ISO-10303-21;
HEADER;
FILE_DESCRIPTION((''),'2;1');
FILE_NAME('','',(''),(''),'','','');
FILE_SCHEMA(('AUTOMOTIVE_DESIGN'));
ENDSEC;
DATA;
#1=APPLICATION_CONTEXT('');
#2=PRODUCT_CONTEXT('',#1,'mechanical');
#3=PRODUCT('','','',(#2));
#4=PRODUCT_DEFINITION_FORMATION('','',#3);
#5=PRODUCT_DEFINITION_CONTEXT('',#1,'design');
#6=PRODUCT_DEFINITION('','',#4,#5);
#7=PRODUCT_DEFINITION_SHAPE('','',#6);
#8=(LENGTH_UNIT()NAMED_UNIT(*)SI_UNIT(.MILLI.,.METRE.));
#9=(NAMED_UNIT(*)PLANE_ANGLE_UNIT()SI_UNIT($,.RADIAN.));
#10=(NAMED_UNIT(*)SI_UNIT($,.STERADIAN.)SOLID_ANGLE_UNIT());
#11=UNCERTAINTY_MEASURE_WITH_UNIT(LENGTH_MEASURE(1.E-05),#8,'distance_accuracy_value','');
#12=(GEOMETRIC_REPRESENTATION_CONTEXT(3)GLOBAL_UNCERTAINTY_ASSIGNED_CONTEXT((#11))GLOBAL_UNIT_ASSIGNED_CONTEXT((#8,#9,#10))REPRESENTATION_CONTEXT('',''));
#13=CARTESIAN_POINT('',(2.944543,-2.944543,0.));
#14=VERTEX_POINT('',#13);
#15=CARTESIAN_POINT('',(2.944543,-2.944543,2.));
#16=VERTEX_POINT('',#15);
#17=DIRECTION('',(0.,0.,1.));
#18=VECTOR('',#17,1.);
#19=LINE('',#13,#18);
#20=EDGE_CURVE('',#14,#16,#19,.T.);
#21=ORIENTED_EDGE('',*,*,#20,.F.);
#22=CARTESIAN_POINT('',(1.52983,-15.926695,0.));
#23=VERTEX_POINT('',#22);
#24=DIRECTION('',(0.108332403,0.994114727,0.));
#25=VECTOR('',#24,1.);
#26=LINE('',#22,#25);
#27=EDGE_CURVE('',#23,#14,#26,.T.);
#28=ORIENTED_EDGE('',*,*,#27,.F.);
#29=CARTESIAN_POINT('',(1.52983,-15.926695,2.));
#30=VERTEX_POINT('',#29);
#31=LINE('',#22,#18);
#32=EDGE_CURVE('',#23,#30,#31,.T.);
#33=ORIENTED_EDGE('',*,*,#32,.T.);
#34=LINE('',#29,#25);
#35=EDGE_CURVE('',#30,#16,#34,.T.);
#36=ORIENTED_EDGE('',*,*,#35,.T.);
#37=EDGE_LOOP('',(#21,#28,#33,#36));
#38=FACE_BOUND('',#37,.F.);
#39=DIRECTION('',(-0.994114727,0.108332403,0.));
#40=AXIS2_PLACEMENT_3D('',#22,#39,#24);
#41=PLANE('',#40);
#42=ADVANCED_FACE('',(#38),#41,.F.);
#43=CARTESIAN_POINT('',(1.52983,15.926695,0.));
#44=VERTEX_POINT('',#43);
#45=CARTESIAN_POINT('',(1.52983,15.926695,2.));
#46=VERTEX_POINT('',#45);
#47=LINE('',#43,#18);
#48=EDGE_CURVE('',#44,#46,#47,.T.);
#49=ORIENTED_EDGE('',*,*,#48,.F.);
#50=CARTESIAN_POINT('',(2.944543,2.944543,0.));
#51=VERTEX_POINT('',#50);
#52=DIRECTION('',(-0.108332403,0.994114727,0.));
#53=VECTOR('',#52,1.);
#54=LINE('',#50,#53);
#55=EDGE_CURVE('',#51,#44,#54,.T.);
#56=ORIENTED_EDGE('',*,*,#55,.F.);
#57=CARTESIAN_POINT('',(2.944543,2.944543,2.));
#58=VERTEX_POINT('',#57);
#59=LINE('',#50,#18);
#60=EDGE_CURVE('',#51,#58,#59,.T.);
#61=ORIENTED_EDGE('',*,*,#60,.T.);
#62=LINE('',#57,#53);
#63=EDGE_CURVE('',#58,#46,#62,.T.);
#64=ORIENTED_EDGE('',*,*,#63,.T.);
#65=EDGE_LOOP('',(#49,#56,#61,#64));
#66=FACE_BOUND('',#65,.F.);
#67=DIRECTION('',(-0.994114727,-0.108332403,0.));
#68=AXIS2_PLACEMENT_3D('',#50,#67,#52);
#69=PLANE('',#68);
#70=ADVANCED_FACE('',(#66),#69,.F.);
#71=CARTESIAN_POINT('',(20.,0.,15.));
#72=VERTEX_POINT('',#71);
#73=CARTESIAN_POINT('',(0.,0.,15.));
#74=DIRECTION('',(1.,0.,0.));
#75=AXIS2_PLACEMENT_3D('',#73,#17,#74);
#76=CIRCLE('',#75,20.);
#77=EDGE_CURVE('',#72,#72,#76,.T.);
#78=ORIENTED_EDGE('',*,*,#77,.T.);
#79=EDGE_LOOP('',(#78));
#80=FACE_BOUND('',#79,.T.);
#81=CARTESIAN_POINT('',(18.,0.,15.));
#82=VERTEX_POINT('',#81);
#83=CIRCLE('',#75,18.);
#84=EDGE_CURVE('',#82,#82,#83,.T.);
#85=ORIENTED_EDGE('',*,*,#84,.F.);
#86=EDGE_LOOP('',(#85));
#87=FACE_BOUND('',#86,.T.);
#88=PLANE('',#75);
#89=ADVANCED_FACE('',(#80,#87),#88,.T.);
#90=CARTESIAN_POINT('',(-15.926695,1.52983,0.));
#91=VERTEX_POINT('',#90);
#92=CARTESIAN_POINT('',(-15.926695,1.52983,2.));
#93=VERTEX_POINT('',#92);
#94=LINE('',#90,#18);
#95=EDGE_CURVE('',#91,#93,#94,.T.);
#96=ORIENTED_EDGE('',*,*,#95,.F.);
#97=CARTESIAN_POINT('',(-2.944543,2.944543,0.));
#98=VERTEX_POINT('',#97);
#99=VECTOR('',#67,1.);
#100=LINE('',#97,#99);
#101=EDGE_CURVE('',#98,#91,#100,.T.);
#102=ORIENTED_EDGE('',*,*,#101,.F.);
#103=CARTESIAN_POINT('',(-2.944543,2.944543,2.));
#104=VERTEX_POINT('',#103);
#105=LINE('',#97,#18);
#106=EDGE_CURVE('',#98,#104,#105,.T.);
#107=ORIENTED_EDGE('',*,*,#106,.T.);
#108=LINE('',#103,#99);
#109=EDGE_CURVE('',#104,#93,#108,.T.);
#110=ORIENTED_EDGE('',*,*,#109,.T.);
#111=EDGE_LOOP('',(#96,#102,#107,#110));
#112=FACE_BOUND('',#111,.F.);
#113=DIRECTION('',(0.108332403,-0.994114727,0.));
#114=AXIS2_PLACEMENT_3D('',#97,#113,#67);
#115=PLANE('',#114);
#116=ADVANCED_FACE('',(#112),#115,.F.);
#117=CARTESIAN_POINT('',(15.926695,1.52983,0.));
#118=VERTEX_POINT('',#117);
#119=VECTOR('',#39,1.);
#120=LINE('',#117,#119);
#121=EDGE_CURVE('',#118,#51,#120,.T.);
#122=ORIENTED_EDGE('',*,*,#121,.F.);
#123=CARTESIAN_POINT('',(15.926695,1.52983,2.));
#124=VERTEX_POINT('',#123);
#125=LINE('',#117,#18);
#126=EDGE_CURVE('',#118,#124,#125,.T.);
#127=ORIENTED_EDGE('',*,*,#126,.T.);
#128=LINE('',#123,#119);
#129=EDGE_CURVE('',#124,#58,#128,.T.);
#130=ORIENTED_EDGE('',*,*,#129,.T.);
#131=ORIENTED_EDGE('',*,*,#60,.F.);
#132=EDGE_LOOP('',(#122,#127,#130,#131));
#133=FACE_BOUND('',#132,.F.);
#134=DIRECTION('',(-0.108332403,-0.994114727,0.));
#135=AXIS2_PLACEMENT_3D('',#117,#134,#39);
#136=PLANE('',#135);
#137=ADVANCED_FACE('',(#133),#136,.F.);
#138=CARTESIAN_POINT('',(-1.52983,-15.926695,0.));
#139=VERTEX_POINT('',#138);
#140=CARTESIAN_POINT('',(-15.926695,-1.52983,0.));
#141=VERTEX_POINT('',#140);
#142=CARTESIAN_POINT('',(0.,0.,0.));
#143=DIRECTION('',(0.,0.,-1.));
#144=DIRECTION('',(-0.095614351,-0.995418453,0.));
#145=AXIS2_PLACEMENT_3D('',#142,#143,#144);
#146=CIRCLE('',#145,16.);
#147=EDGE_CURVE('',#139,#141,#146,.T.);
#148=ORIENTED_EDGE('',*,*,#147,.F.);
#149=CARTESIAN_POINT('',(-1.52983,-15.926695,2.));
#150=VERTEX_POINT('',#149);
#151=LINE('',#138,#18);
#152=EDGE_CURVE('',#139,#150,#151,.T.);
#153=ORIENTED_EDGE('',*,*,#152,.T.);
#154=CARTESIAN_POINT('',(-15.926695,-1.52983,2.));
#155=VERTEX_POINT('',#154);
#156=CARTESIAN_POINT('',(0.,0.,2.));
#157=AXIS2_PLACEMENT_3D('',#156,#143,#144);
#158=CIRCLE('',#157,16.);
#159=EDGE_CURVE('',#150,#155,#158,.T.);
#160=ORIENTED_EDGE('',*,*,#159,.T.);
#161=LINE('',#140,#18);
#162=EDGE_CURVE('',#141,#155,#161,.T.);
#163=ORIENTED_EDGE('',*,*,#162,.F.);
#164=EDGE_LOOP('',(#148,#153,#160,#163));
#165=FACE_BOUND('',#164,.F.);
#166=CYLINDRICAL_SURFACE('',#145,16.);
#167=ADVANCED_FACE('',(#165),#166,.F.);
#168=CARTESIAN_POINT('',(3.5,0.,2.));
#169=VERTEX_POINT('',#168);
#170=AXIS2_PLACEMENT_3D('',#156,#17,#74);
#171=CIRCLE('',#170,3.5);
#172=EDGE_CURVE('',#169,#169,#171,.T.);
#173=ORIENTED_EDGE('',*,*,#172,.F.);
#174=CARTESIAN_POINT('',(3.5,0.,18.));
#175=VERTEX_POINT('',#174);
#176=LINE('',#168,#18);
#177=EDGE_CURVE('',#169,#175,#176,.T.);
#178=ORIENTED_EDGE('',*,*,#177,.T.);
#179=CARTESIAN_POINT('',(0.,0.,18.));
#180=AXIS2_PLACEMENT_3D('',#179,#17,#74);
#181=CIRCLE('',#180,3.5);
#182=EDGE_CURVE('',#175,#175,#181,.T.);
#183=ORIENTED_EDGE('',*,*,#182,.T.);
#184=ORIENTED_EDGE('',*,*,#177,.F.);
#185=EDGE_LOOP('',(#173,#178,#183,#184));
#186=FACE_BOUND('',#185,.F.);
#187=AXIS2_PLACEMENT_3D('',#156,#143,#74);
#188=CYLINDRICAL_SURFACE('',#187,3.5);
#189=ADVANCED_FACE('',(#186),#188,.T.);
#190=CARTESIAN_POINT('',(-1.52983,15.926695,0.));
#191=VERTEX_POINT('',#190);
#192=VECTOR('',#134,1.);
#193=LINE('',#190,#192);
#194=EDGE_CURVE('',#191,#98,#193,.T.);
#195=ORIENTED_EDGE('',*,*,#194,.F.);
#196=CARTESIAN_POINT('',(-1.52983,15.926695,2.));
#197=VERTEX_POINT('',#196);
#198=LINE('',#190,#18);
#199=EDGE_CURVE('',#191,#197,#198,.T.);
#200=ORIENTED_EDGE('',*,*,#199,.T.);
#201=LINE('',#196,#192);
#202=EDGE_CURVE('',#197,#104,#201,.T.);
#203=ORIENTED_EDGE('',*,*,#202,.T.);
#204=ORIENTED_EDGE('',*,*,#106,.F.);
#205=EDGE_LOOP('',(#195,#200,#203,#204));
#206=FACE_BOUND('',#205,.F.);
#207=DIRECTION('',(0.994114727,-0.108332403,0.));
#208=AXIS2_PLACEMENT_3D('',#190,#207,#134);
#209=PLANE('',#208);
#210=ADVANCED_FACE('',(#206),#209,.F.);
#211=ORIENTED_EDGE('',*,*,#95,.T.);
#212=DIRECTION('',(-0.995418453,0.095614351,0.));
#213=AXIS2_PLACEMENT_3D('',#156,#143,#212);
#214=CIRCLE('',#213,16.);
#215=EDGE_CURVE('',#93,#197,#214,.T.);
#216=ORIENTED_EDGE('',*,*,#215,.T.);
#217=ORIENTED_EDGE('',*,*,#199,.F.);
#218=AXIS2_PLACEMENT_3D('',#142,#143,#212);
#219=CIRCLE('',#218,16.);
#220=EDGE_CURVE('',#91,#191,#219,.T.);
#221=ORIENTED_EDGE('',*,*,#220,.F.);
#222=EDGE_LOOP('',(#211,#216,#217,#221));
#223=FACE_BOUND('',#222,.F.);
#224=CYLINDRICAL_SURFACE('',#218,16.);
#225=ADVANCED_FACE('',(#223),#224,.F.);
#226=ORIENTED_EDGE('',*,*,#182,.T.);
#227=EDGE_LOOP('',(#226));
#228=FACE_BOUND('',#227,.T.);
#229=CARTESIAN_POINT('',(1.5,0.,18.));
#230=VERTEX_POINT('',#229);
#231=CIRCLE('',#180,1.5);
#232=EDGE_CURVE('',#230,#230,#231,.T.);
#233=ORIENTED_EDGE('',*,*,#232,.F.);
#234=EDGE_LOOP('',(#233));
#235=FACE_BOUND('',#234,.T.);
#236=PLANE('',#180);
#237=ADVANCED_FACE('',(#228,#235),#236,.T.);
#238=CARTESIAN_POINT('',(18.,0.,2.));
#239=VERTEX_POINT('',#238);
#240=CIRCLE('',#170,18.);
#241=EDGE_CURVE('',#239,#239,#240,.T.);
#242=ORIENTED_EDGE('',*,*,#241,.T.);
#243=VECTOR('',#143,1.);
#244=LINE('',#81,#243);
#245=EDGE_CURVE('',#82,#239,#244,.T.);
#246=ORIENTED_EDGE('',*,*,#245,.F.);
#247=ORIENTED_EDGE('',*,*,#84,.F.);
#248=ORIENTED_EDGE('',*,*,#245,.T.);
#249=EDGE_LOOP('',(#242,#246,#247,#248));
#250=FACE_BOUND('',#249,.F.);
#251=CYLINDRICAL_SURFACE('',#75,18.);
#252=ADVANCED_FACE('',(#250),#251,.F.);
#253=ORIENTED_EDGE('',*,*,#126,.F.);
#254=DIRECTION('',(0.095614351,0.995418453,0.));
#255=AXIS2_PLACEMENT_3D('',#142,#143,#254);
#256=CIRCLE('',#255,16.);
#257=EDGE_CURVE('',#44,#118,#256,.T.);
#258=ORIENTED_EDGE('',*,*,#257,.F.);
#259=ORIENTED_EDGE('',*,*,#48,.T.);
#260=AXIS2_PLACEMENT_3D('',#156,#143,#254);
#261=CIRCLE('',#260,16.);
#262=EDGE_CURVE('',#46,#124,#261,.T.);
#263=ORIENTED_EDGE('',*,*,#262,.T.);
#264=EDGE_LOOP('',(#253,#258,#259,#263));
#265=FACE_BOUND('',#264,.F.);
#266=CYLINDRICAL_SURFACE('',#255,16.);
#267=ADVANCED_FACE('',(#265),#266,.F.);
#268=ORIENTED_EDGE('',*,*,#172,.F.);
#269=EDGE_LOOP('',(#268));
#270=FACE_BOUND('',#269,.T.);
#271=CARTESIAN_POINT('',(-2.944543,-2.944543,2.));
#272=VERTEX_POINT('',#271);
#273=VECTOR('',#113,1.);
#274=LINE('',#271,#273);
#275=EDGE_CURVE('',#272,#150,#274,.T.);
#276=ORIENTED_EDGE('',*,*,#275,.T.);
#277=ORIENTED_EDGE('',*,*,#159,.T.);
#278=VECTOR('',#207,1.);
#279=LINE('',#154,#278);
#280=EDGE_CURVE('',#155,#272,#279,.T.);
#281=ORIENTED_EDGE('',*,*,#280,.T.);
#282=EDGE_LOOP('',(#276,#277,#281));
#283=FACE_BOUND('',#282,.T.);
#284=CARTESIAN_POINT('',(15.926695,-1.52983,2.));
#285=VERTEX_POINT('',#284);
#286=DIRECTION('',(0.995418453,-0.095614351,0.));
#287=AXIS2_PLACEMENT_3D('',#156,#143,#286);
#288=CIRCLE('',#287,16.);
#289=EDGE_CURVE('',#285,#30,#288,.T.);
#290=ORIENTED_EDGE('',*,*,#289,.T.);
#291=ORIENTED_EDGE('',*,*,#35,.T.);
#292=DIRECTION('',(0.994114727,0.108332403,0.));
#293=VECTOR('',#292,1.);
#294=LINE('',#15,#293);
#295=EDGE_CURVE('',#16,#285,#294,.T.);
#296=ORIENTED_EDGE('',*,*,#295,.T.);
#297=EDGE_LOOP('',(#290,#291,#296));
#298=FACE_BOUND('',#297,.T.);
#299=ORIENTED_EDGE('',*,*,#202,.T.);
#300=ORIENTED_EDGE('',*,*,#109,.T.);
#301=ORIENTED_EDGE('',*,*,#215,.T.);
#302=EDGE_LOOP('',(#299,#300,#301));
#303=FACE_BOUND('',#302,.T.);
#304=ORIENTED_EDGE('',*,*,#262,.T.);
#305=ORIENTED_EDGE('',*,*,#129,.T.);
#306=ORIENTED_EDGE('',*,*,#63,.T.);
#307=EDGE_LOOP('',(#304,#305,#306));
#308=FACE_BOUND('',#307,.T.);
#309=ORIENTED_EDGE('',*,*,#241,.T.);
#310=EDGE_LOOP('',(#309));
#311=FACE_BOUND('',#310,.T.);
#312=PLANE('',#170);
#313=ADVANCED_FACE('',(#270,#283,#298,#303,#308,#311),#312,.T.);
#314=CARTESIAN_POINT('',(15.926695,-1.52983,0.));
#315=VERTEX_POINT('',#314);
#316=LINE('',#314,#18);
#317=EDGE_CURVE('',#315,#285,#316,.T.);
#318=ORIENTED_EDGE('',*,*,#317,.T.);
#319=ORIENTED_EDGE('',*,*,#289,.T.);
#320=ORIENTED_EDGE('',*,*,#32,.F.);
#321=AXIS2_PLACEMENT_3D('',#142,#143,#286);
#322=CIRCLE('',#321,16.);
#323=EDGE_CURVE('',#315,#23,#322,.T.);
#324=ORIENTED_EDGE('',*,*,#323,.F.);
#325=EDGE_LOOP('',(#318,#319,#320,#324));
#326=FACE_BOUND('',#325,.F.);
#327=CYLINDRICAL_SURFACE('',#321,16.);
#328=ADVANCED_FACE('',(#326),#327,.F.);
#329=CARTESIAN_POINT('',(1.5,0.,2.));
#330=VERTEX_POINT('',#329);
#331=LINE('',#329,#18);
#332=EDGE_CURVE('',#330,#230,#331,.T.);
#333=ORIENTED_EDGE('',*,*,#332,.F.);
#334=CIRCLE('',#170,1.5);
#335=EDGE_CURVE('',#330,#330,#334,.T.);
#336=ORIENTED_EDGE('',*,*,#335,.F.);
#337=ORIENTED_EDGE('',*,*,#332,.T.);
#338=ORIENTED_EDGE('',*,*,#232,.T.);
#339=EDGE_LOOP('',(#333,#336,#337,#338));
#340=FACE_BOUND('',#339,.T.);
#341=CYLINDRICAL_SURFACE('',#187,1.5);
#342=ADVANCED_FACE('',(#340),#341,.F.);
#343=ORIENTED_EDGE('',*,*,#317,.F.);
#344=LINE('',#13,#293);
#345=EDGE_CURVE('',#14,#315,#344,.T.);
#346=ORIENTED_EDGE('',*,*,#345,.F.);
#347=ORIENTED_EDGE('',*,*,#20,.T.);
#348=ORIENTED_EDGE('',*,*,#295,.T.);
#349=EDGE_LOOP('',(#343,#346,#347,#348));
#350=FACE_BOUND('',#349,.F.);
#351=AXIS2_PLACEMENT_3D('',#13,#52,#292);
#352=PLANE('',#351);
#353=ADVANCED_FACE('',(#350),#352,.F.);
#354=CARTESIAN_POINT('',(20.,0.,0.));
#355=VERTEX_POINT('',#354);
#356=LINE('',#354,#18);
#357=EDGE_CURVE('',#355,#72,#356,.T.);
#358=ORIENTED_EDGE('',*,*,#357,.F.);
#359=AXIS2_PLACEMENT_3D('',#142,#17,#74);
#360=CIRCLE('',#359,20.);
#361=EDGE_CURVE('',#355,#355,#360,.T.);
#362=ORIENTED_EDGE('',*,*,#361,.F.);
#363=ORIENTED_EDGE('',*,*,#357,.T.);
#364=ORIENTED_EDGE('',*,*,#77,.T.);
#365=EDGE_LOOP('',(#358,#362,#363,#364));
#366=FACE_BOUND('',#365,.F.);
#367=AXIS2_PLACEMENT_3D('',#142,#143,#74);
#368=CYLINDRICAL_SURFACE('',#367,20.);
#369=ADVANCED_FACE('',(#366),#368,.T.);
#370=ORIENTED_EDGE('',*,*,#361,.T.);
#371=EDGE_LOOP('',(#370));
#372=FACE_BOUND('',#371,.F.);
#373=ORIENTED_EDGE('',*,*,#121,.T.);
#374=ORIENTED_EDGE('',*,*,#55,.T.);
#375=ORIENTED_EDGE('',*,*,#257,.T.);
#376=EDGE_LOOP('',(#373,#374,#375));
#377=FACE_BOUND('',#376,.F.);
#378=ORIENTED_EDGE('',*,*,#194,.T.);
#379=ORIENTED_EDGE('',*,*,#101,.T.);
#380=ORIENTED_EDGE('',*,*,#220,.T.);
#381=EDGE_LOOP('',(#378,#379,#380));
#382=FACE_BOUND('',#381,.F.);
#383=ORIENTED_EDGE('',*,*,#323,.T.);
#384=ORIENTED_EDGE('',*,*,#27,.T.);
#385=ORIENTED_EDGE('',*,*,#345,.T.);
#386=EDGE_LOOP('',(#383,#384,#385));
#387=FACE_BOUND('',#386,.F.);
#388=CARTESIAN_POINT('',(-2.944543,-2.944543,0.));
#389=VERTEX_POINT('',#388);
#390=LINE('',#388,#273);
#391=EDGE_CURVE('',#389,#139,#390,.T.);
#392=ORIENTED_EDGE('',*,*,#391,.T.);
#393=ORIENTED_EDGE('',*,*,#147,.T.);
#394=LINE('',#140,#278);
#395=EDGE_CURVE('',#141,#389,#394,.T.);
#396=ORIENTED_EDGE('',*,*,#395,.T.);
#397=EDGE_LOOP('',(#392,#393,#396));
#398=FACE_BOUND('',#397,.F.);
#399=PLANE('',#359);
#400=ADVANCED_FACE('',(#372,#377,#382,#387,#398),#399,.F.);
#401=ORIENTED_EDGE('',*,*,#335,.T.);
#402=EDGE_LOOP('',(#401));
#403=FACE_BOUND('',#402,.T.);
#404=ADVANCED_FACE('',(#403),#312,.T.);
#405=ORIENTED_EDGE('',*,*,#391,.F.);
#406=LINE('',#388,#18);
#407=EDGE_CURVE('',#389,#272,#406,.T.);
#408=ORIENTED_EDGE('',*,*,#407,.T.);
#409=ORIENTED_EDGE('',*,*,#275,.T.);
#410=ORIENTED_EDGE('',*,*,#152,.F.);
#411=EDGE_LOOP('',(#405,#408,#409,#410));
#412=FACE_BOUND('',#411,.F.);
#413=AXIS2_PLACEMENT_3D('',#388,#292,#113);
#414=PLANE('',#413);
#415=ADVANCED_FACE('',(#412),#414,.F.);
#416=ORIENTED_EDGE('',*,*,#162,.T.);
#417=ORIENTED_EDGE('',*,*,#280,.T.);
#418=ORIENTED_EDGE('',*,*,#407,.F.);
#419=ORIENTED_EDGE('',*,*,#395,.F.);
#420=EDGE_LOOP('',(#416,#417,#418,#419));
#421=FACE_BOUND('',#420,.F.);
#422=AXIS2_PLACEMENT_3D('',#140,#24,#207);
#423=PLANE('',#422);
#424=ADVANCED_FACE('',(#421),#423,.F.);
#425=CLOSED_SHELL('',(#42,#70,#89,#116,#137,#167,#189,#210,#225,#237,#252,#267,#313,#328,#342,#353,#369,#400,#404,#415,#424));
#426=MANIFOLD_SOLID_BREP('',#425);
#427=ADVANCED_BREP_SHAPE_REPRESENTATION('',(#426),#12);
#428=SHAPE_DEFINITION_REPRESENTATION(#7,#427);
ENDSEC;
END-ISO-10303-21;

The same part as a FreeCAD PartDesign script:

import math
import FreeCAD as App
import Part
import Sketcher
Q = App.Units.Quantity

doc = App.newDocument("Part")
body = doc.addObject("PartDesign::Body", "Body")

sketch1 = doc.addObject("Sketcher::SketchObject", "Sketch")
body.addObject(sketch1)
sketch1.AttachmentSupport = (doc.XY_Plane, [""])
sketch1.MapMode = "FlatFace"
sketch1.addGeometry(Part.Circle(App.Vector(0, 0, 0), App.Vector(0, 0, 1), 20), False)
sketch1.addConstraint([
    Sketcher.Constraint("Coincident", 0, 3, -1, 1),
    Sketcher.Constraint("Diameter", 0, Q("40 mm")),
])
pad1 = doc.addObject("PartDesign::Pad", "Pad")
body.addObject(pad1)
pad1.Profile = sketch1
pad1.Length = 15

sketch2 = doc.addObject("Sketcher::SketchObject", "Sketch001")
body.addObject(sketch2)
sketch2.AttachmentSupport = (doc.XY_Plane, [""])
sketch2.MapMode = "FlatFace"
sketch2.AttachmentOffset = App.Placement(App.Vector(0, 0, 15), App.Rotation())
sketch2.addGeometry(Part.Circle(App.Vector(0, 0, 0), App.Vector(0, 0, 1), 18), False)
sketch2.addConstraint([
    Sketcher.Constraint("Coincident", 0, 3, -1, 1),
    Sketcher.Constraint("Diameter", 0, Q("36 mm")),
])
pocket1 = doc.addObject("PartDesign::Pocket", "Pocket")
body.addObject(pocket1)
pocket1.Profile = sketch2
pocket1.Length = 13

sketch3 = doc.addObject("Sketcher::SketchObject", "Sketch002")
body.addObject(sketch3)
sketch3.AttachmentSupport = (doc.XY_Plane, [""])
sketch3.MapMode = "FlatFace"
sketch3.AttachmentOffset = App.Placement(App.Vector(0, 0, 2), App.Rotation())
sketch3.addGeometry([
    Part.Circle(App.Vector(0, 0, 0), App.Vector(0, 0, 1), 3.5),
    Part.Circle(App.Vector(0, 0, 0), App.Vector(0, 0, 1), 1.5),
], False)
sketch3.addConstraint([
    Sketcher.Constraint("Coincident", 0, 3, -1, 1),
    Sketcher.Constraint("Coincident", 1, 3, -1, 1),
    Sketcher.Constraint("Diameter", 0, Q("7 mm")),
    Sketcher.Constraint("Diameter", 1, Q("3 mm")),
])
pad2 = doc.addObject("PartDesign::Pad", "Pad001")
body.addObject(pad2)
pad2.Profile = sketch3
pad2.Length = 16

sketch4 = doc.addObject("Sketcher::SketchObject", "Sketch003")
body.addObject(sketch4)
sketch4.AttachmentSupport = (doc.XY_Plane, [""])
sketch4.MapMode = "FlatFace"
sketch4.addGeometry([
    Part.LineSegment(App.Vector(-15.926695, -1.52983, 0), App.Vector(-2.944543, -2.944543, 0)),
    Part.LineSegment(App.Vector(-2.944543, -2.944543, 0), App.Vector(-1.52983, -15.926695, 0)),
    Part.ArcOfCircle(Part.Circle(App.Vector(0, 0, 0), App.Vector(0, 0, 1), 16), math.radians(-174.51332), math.radians(-95.48668)),
    Part.LineSegment(App.Vector(-1.52983, 15.926695, 0), App.Vector(-2.944543, 2.944543, 0)),
    Part.LineSegment(App.Vector(-2.944543, 2.944543, 0), App.Vector(-15.926695, 1.52983, 0)),
    Part.ArcOfCircle(Part.Circle(App.Vector(0, 0, 0), App.Vector(0, 0, 1), 16), math.radians(95.48668), math.radians(174.51332)),
    Part.LineSegment(App.Vector(15.926695, 1.52983, 0), App.Vector(2.944543, 2.944543, 0)),
    Part.LineSegment(App.Vector(2.944543, 2.944543, 0), App.Vector(1.52983, 15.926695, 0)),
    Part.ArcOfCircle(Part.Circle(App.Vector(0, 0, 0), App.Vector(0, 0, 1), 16), math.radians(5.48668), math.radians(84.51332)),
    Part.LineSegment(App.Vector(1.52983, -15.926695, 0), App.Vector(2.944543, -2.944543, 0)),
    Part.LineSegment(App.Vector(2.944543, -2.944543, 0), App.Vector(15.926695, -1.52983, 0)),
    Part.ArcOfCircle(Part.Circle(App.Vector(0, 0, 0), App.Vector(0, 0, 1), 16), math.radians(-84.51332), math.radians(-5.48668)),
], False)
sketch4.addConstraint([
    Sketcher.Constraint("Coincident", 0, 2, 1, 1),
    Sketcher.Constraint("Coincident", 1, 2, 2, 2),
    Sketcher.Constraint("Coincident", 2, 1, 0, 1),
    Sketcher.Constraint("Coincident", 3, 2, 4, 1),
    Sketcher.Constraint("Coincident", 4, 2, 5, 2),
    Sketcher.Constraint("Coincident", 5, 1, 3, 1),
    Sketcher.Constraint("Coincident", 6, 2, 7, 1),
    Sketcher.Constraint("Coincident", 7, 2, 8, 2),
    Sketcher.Constraint("Coincident", 8, 1, 6, 1),
    Sketcher.Constraint("Coincident", 9, 2, 10, 1),
    Sketcher.Constraint("Coincident", 10, 2, 11, 2),
    Sketcher.Constraint("Coincident", 11, 1, 9, 1),
    Sketcher.Constraint("Coincident", 2, 3, -1, 1),
    Sketcher.Constraint("Coincident", 5, 3, -1, 1),
    Sketcher.Constraint("Coincident", 8, 3, -1, 1),
    Sketcher.Constraint("Coincident", 11, 3, -1, 1),
    Sketcher.Constraint("Equal", 2, 5),
    Sketcher.Constraint("Equal", 5, 8),
    Sketcher.Constraint("Equal", 8, 11),
    Sketcher.Constraint("Symmetric", 0, 2, 6, 2, -1, 1),
    Sketcher.Constraint("Symmetric", 3, 2, 9, 2, -1, 1),
    Sketcher.Constraint("Symmetric", 3, 2, 6, 2, -2),
    Sketcher.Constraint("Perpendicular", 0, 3),
    Sketcher.Constraint("Perpendicular", 1, 4),
    Sketcher.Constraint("Perpendicular", 3, 6),
    Sketcher.Constraint("Perpendicular", 4, 7),
    Sketcher.Constraint("Perpendicular", 6, 9),
    Sketcher.Constraint("Perpendicular", 7, 10),
    Sketcher.Constraint("Horizontal", 5, 1, 7, 2),
    Sketcher.Constraint("Equal", 0, 1),
    Sketcher.Constraint("Radius", 2, Q("16 mm")),
    Sketcher.Constraint("DistanceX", 1, 2, -1, 1, Q("1.52983 mm")),
    Sketcher.Constraint("DistanceY", 1, 2, 0, 2, Q("12.982152 mm")),
])
pocket2 = doc.addObject("PartDesign::Pocket", "Pocket001")
body.addObject(pocket2)
pocket2.Profile = sketch4
pocket2.Length = 2
pocket2.Reversed = True

doc.recompute()
